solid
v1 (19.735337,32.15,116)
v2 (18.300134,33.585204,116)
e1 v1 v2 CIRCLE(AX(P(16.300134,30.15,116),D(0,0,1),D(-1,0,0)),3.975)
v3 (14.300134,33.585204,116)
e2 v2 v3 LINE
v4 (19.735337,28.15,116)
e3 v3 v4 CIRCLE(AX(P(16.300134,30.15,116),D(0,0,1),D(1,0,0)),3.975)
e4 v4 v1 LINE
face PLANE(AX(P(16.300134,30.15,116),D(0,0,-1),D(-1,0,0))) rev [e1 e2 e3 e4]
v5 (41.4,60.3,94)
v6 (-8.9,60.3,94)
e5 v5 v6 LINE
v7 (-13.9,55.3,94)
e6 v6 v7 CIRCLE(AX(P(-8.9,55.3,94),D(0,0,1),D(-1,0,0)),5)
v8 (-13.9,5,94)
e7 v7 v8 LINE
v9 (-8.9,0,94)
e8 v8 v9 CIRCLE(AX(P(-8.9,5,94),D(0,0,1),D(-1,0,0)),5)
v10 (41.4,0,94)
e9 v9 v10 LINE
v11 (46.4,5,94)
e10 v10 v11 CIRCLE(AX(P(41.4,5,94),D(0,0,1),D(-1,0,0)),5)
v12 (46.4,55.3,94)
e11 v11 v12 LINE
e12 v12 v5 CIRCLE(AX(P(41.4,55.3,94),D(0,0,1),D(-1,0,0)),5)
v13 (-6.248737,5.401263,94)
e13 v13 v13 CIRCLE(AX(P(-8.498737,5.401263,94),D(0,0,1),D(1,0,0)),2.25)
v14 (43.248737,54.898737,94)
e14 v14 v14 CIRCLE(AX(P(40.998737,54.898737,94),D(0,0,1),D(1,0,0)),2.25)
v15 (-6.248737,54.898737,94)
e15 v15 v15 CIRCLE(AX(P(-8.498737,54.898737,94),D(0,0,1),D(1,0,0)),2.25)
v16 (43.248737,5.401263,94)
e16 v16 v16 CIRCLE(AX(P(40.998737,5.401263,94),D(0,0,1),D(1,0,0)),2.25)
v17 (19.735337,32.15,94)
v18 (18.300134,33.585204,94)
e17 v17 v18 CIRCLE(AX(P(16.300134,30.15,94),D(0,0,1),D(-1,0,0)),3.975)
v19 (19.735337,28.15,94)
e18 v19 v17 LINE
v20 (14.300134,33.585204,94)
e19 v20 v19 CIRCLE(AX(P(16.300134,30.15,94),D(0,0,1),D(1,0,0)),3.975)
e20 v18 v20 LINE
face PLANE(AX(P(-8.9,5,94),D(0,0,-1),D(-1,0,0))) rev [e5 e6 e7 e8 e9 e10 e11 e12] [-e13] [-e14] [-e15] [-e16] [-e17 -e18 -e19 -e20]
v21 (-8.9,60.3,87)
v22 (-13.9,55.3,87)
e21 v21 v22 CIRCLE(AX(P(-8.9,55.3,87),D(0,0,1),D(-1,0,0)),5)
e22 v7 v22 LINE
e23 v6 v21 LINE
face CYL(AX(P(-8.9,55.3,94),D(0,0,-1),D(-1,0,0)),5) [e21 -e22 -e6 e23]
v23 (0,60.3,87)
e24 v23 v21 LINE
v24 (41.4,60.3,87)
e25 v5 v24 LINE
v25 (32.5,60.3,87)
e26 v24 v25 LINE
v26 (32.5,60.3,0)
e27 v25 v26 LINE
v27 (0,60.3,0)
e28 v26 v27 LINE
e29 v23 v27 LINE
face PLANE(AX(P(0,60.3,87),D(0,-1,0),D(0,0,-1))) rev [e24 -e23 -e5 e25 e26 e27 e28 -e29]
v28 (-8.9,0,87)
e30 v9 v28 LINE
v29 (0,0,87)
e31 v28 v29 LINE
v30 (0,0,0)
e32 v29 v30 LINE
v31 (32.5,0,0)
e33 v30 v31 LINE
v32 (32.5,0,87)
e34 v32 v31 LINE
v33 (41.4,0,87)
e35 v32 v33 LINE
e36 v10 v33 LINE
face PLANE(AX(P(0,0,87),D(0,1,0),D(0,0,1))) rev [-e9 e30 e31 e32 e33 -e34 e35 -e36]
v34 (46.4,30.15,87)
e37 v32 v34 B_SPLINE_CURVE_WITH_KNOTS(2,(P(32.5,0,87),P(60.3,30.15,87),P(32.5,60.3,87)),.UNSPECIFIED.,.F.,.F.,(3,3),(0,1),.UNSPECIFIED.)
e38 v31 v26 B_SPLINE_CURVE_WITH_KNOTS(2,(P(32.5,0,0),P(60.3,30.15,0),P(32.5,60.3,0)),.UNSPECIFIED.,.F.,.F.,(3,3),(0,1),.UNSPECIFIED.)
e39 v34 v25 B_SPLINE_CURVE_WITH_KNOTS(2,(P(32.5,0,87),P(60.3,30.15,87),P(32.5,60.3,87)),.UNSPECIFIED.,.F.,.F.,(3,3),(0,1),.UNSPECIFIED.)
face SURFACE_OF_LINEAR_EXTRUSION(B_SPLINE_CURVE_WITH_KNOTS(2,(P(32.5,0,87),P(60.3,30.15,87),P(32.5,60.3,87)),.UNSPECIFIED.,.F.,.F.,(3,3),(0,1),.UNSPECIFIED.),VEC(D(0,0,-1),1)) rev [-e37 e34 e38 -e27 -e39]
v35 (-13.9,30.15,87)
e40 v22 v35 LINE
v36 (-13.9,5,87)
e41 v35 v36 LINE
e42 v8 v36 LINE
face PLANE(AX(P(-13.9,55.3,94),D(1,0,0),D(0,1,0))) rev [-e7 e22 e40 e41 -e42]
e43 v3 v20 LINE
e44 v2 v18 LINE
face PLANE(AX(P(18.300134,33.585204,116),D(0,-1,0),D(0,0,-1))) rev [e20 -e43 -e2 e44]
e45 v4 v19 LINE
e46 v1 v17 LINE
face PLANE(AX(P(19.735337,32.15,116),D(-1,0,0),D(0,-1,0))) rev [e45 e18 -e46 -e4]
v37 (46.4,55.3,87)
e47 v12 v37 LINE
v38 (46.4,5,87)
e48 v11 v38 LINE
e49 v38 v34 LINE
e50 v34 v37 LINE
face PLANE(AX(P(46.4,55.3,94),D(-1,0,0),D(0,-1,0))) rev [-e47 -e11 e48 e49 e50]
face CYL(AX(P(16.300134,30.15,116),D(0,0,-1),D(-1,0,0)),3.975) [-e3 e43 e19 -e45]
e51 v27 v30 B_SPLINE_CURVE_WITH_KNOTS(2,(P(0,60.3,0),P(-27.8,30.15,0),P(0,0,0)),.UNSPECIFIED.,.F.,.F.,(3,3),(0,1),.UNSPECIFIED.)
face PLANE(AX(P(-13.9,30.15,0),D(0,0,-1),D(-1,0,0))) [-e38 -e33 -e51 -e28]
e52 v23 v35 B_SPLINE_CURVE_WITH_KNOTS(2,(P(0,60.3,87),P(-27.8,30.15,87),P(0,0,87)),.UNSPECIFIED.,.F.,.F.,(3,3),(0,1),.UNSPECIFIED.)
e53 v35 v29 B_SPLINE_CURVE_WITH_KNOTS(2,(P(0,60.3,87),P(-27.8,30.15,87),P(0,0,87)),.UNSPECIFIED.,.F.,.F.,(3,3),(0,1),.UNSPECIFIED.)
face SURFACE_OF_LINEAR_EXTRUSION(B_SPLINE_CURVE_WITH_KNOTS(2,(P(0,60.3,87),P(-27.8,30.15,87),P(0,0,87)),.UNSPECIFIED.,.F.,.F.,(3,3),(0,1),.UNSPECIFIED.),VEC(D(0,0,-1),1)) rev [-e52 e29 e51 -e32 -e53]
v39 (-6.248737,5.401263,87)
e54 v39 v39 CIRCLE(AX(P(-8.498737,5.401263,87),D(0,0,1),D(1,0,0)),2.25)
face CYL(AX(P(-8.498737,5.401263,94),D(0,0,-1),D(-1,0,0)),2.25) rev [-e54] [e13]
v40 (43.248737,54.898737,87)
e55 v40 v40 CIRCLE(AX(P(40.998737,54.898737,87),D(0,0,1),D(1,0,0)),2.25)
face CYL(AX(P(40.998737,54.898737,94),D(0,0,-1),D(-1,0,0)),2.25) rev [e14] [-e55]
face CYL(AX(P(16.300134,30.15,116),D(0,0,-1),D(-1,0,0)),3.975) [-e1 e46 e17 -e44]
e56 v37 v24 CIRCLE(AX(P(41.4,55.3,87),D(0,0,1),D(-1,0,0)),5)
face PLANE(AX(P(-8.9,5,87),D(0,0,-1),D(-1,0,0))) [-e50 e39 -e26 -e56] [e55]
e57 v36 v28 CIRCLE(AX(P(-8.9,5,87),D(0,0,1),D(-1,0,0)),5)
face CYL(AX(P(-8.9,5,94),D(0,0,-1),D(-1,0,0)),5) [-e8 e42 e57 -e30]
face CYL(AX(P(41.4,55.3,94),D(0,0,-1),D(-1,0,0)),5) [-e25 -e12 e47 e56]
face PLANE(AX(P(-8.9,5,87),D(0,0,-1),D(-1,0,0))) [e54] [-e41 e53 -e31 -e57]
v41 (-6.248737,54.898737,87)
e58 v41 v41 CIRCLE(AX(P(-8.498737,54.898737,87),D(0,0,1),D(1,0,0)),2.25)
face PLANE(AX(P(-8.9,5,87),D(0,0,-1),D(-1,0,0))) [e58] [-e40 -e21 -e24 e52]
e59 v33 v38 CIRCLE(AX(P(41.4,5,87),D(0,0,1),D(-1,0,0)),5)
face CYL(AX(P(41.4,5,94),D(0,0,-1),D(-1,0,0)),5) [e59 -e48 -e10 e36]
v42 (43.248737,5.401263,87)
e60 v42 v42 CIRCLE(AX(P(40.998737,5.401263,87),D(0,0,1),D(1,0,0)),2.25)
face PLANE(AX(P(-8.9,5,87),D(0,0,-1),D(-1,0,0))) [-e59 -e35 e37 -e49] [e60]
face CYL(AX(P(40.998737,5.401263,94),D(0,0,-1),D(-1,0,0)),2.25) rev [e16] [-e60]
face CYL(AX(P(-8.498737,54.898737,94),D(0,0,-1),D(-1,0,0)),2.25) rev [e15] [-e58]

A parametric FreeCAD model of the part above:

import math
import FreeCAD as App
import Part
import Sketcher

V = App.Vector

doc = App.newDocument("Part")
params = doc.addObject("Spreadsheet::Sheet", "Params")
for row, (alias, value) in enumerate([
    ("pad1_length", "87 mm"),
    ("sketch2_radius", "5 mm"),
    ("sketch2_diameter", "4.5 mm"),
    ("sketch2_width", "50.3 mm"),
    ("pad2_length", "7 mm"),
    ("sketch3_width", "4 mm"),
    ("pad3_length", "22 mm"),
], start=1):
    params.set(f"A{row}", alias)
    params.set(f"B{row}", "=" + value)
    params.setAlias(f"B{row}", alias)

body = doc.addObject("PartDesign::Body", "Body")

# Sketch on XY plane
sketch1 = doc.addObject("Sketcher::SketchObject", "Sketch")
body.addObject(sketch1)
sketch1.AttachmentSupport = (doc.XY_Plane, [""])
sketch1.MapMode = "FlatFace"
sketch1.addGeometry([
    Part.LineSegment(V(0, 0, 0), V(32.5, 0, 0)),
    Part.BSplineCurve([V(32.5, 60.3, 0), V(60.3, 30.15, 0), V(32.5, 0, 0)], [3, 3], [0, 1], False, 2, [1, 1, 1], False),
    Part.LineSegment(V(32.5, 60.3, 0), V(0, 60.3, 0)),
    Part.BSplineCurve([V(0, 60.3, 0), V(-27.8, 30.15, 0), V(0, 0, 0)], [3, 3], [0, 1], False, 2, [1, 1, 1], False),
], False)
sketch1.addConstraint([
    Sketcher.Constraint("Block", 1),
    Sketcher.Constraint("Block", 3),
    Sketcher.Constraint("Coincident", 0, 2, 1, 2),
    Sketcher.Constraint("Coincident", 1, 1, 2, 1),
    Sketcher.Constraint("Coincident", 2, 2, 3, 1),
    Sketcher.Constraint("Coincident", 3, 2, 0, 1),
])
pad1 = doc.addObject("PartDesign::Pad", "Pad")
body.addObject(pad1)
pad1.Profile = sketch1
pad1.setExpression("Length", "Params.pad1_length")

# Sketch on XY plane
sketch2 = doc.addObject("Sketcher::SketchObject", "Sketch001")
body.addObject(sketch2)
sketch2.AttachmentSupport = (doc.XY_Plane, [""])
sketch2.MapMode = "FlatFace"
sketch2.AttachmentOffset = App.Placement(V(0, 0, 87), App.Rotation())
sketch2.addGeometry([
    Part.LineSegment(V(-13.9, 55.3, 0), V(-13.9, 5, 0)),  # 0
    Part.ArcOfCircle(Part.Circle(V(-8.9, 5, 0), V(0, 0, 1), 5), math.radians(180), math.radians(270)),  # 1
    Part.LineSegment(V(-8.9, 0, 0), V(41.4, 0, 0)),  # 2
    Part.ArcOfCircle(Part.Circle(V(41.4, 5, 0), V(0, 0, 1), 5), math.radians(-90), math.radians(0)),  # 3
    Part.LineSegment(V(46.4, 5, 0), V(46.4, 55.3, 0)),  # 4
    Part.ArcOfCircle(Part.Circle(V(41.4, 55.3, 0), V(0, 0, 1), 5), math.radians(0), math.radians(90)),  # 5
    Part.LineSegment(V(41.4, 60.3, 0), V(-8.9, 60.3, 0)),  # 6
    Part.ArcOfCircle(Part.Circle(V(-8.9, 55.3, 0), V(0, 0, 1), 5), math.radians(90), math.radians(180)),  # 7
    Part.Circle(V(-8.5, 5.4, 0), V(0, 0, 1), 2.2),  # 8
    Part.Circle(V(41, 5.4, 0), V(0, 0, 1), 2.2),  # 9
    Part.Circle(V(-8.5, 54.9, 0), V(0, 0, 1), 2.2),  # 10
    Part.Circle(V(41, 54.9, 0), V(0, 0, 1), 2.2),  # 11
], False)
sketch2.addConstraint([
    Sketcher.Constraint("Tangent", 0, 2, 1, 1),
    Sketcher.Constraint("Tangent", 1, 2, 2, 1),
    Sketcher.Constraint("Tangent", 2, 2, 3, 1),
    Sketcher.Constraint("Tangent", 3, 2, 4, 1),
    Sketcher.Constraint("Tangent", 4, 2, 5, 1),
    Sketcher.Constraint("Tangent", 5, 2, 6, 1),
    Sketcher.Constraint("Tangent", 6, 2, 7, 1),
    Sketcher.Constraint("Tangent", 7, 2, 0, 1),
    Sketcher.Constraint("Vertical", 0),
    Sketcher.Constraint("Horizontal", 2),
    Sketcher.Constraint("Vertical", 4),
    Sketcher.Constraint("Horizontal", 6),
    Sketcher.Constraint("Equal", 1, 3),
    Sketcher.Constraint("Equal", 3, 5),
    Sketcher.Constraint("Equal", 5, 7),
    Sketcher.Constraint("Equal", 8, 9),
    Sketcher.Constraint("Equal", 9, 10),
    Sketcher.Constraint("Equal", 10, 11),
    Sketcher.Constraint("PointOnObject", 1, 2, -1),
    Sketcher.Constraint("Horizontal", 8, 3, 9, 3),
    Sketcher.Constraint("Horizontal", 10, 3, 11, 3),
    Sketcher.Constraint("Vertical", 8, 3, 10, 3),
    Sketcher.Constraint("Vertical", 9, 3, 11, 3),
    Sketcher.Constraint("Equal", 6, 0),
    Sketcher.Constraint("Radius", 1, 5.0),
    Sketcher.Constraint("Diameter", 8, 4.5),
    Sketcher.Constraint("DistanceX", 2, 1, 2, 2, 50.3),
    Sketcher.Constraint("DistanceX", 1, 3, -1, 1, 8.9),
    Sketcher.Constraint("DistanceX", 8, 3, -1, 1, 8.498737),
    Sketcher.Constraint("DistanceY", -1, 1, 8, 3, 5.401263),
    Sketcher.Constraint("DistanceX", -1, 1, 9, 3, 40.998737),
    Sketcher.Constraint("DistanceY", -1, 1, 10, 3, 54.898737),
])
sketch2.setExpression("Constraints[24]", "Params.sketch2_radius")
sketch2.setExpression("Constraints[25]", "Params.sketch2_diameter")
sketch2.setExpression("Constraints[26]", "Params.sketch2_width")
pad2 = doc.addObject("PartDesign::Pad", "Pad001")
body.addObject(pad2)
pad2.Profile = sketch2
pad2.setExpression("Length", "Params.pad2_length")

# Sketch on XY plane
sketch3 = doc.addObject("Sketcher::SketchObject", "Sketch002")
body.addObject(sketch3)
sketch3.AttachmentSupport = (doc.XY_Plane, [""])
sketch3.MapMode = "FlatFace"
sketch3.AttachmentOffset = App.Placement(V(0, 0, 94), App.Rotation())
sketch3.addGeometry([
    Part.LineSegment(V(18.3, 33.6, 0), V(14.3, 33.6, 0)),
    Part.ArcOfCircle(Part.Circle(V(16.3, 30.1, 0), V(0, 0, 1), 4), math.radians(120), math.radians(330)),
    Part.LineSegment(V(19.7, 28.1, 0), V(19.7, 32.1, 0)),
    Part.ArcOfCircle(Part.Circle(V(16.3, 30.1, 0), V(0, 0, 1), 4), math.radians(30), math.radians(60)),
], False)
sketch3.addConstraint([
    Sketcher.Constraint("Coincident", 0, 2, 1, 1),
    Sketcher.Constraint("Coincident", 1, 2, 2, 1),
    Sketcher.Constraint("Coincident", 2, 2, 3, 1),
    Sketcher.Constraint("Coincident", 3, 2, 0, 1),
    Sketcher.Constraint("Horizontal", 0),
    Sketcher.Constraint("Vertical", 2),
    Sketcher.Constraint("Coincident", 3, 3, 1, 3),
    Sketcher.Constraint("Equal", 1, 3),
    Sketcher.Constraint("Equal", 0, 2),
    Sketcher.Constraint("DistanceX", 0, 2, 0, 1, 4.0),
    Sketcher.Constraint("Radius", 1, 3.975),
    Sketcher.Constraint("DistanceY", -1, 1, 1, 3, 30.15),
    Sketcher.Constraint("DistanceX", -1, 1, 1, 3, 16.300134),
])
sketch3.setExpression("Constraints[9]", "Params.sketch3_width")
pad3 = doc.addObject("PartDesign::Pad", "Pad002")
body.addObject(pad3)
pad3.Profile = sketch3
pad3.setExpression("Length", "Params.pad3_length")

doc.recompute()
